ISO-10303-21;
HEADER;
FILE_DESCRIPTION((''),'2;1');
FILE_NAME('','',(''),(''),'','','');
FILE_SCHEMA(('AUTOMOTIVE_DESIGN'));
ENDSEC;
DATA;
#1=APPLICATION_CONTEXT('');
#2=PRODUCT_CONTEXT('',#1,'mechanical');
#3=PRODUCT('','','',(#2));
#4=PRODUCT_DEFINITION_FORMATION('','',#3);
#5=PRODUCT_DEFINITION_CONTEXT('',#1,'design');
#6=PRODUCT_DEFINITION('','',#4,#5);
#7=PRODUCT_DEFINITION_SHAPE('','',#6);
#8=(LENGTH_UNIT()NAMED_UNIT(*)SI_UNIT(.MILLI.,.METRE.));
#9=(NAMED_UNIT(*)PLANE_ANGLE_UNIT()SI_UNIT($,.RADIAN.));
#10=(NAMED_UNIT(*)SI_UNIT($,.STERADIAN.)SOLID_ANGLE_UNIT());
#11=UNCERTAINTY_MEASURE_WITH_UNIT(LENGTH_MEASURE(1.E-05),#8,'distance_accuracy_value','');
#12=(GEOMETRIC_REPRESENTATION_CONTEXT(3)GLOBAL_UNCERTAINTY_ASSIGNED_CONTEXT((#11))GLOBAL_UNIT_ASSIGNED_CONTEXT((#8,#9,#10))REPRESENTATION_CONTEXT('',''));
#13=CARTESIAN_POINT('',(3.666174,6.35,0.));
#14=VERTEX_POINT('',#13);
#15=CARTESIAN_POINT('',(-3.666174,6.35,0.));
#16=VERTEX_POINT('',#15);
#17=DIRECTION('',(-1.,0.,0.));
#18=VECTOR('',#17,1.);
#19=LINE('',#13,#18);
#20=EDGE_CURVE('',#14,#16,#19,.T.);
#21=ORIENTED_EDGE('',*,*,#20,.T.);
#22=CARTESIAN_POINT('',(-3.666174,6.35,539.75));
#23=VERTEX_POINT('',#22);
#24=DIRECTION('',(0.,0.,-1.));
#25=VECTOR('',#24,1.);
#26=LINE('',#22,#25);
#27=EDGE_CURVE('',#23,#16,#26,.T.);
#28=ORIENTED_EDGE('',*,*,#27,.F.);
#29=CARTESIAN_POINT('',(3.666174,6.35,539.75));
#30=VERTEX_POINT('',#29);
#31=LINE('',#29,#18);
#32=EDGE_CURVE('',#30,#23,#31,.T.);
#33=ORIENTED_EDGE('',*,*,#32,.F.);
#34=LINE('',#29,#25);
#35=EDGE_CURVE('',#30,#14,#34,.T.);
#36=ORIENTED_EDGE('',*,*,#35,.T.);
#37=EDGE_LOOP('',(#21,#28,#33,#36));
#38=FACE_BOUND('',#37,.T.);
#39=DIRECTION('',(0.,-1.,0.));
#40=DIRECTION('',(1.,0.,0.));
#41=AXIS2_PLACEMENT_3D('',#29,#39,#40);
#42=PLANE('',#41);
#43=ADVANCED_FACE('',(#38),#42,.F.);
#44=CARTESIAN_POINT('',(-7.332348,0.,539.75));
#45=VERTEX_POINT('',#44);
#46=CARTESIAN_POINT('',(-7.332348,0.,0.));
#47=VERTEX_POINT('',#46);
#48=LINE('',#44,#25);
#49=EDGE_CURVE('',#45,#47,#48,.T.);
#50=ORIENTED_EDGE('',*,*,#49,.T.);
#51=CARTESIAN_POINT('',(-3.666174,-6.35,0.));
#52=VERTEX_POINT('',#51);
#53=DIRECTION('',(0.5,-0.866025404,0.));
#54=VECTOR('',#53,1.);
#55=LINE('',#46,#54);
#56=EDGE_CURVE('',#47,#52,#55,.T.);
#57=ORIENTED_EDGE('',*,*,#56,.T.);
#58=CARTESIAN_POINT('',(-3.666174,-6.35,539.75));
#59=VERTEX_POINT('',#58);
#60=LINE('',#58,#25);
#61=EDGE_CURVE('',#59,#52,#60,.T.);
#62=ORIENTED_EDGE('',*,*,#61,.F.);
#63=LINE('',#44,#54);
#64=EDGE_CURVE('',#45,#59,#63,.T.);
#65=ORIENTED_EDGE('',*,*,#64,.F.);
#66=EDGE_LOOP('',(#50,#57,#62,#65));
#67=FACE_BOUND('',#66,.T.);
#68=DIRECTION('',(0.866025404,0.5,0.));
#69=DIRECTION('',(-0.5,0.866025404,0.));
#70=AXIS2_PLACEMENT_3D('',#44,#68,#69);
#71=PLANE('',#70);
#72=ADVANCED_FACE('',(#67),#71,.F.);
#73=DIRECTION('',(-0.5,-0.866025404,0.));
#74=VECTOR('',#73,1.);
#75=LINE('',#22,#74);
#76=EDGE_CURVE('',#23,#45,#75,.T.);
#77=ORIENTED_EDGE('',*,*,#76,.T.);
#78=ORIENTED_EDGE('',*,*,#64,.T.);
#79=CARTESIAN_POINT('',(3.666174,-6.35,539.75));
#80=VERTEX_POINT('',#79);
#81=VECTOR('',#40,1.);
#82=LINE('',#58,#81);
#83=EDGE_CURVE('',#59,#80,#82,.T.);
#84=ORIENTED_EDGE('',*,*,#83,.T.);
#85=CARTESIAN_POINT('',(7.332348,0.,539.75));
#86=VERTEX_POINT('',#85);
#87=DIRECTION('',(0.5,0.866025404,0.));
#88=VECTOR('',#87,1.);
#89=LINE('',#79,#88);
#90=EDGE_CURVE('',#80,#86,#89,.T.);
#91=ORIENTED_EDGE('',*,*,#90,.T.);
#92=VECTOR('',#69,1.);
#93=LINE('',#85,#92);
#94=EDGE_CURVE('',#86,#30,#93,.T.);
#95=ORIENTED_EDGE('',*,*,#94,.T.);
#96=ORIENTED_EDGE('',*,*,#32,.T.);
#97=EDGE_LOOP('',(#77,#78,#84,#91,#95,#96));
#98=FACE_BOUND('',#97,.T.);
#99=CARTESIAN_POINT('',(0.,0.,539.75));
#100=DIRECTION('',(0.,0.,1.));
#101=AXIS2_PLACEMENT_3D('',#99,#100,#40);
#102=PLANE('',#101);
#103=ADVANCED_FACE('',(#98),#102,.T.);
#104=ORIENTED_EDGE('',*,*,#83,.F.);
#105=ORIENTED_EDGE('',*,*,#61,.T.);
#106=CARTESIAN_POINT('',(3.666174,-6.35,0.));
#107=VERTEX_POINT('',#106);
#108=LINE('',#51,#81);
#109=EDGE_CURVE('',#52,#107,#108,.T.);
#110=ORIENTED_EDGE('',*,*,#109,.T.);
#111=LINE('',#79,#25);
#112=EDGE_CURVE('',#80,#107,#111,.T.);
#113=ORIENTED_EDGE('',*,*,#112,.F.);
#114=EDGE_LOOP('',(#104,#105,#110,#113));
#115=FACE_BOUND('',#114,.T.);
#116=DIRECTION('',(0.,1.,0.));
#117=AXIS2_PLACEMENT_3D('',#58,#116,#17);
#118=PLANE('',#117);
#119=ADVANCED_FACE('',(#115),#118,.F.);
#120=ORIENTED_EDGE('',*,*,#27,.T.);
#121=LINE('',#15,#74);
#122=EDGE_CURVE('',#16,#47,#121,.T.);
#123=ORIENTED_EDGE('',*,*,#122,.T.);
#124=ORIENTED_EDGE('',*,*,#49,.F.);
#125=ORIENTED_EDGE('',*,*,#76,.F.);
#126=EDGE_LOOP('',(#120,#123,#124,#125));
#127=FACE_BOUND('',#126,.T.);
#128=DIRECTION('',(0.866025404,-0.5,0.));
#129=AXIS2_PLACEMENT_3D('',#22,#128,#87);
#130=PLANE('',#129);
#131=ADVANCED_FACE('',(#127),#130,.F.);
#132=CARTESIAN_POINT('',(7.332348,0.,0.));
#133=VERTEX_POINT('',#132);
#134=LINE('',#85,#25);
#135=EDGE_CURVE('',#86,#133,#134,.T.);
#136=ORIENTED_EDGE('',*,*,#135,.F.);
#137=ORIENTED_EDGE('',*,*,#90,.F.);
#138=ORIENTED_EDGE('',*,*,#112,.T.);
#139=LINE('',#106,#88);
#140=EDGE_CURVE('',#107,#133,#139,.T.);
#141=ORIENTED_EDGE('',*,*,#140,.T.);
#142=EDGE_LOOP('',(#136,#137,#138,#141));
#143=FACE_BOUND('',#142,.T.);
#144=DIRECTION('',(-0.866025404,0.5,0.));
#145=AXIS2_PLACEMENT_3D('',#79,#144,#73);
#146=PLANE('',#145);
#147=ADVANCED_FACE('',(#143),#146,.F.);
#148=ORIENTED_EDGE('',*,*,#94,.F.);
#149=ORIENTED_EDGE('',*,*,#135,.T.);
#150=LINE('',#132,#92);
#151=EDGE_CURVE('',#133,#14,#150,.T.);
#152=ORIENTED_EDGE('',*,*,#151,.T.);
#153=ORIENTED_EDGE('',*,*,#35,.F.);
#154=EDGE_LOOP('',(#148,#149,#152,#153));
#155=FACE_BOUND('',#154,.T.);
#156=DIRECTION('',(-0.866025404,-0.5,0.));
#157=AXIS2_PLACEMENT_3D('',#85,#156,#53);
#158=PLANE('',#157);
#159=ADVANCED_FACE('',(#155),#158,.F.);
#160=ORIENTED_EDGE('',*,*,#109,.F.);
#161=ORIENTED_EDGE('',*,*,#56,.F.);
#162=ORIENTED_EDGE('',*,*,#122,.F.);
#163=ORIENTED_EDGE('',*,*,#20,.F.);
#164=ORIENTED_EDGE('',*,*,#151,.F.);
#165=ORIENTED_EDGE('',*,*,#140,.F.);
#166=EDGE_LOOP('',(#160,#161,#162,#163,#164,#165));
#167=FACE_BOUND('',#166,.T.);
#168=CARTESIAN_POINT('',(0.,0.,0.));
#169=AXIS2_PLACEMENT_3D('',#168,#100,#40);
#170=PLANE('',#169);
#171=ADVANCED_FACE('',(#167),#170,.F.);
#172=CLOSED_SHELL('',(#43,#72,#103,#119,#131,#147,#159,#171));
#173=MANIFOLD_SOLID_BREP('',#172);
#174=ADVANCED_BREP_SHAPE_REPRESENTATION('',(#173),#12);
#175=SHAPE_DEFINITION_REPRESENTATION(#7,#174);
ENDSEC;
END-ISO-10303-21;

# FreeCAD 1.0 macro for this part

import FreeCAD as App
import Part
import Sketcher

V = App.Vector
Q = App.Units.Quantity


def add_polygon(sketch, points):
    """Adds a closed chain of lines whose ends are joined by coincident constraints."""
    first, n = sketch.GeometryCount, len(points)
    for a, b in zip(points, points[1:] + points[:1]):
        sketch.addGeometry(Part.LineSegment(App.Vector(*a, 0), App.Vector(*b, 0)), False)
    for i in range(n):
        sketch.addConstraint(Sketcher.Constraint("Coincident", first + i, 2, first + (i + 1) % n, 1))

doc = App.newDocument("Part")
params = doc.addObject("Spreadsheet::Sheet", "Params")
for row, (alias, value) in enumerate([
    ("pad1_length", "21.25 in"),
], start=1):
    params.set(f"A{row}", alias)
    params.set(f"B{row}", "=" + value)
    params.setAlias(f"B{row}", alias)

body = doc.addObject("PartDesign::Body", "Body")

# Sketch on XY plane
sketch1 = body.newObject("Sketcher::SketchObject", "Sketch")
sketch1.AttachmentSupport = (doc.getObject("XY_Plane"), [""])
sketch1.MapMode = "FlatFace"
add_polygon(sketch1, [(7.332348, 0), (3.666174, 6.35), (-3.666174, 6.35), (-7.332348, 0), (-3.666174, -6.35), (3.666174, -6.35)])  # lines 0-5
sketch1.addConstraint(Sketcher.Constraint("Horizontal", 1))
sketch1.addConstraint(Sketcher.Constraint("Horizontal", 4))
sketch1.addConstraint(Sketcher.Constraint("Symmetric", 0, 2, 3, 2, -1, 1))
sketch1.addConstraint(Sketcher.Constraint("Symmetric", 2, 2, 5, 2, -1, 1))
sketch1.addConstraint(Sketcher.Constraint("PointOnObject", 2, 2, -1))
sketch1.addConstraint(Sketcher.Constraint("Parallel", 2, 5))
sketch1.addConstraint(Sketcher.Constraint("Vertical", 1, 2, 3, 2))
sketch1.addConstraint(Sketcher.Constraint("Angle", 0, Q("120 deg")))
sketch1.addConstraint(Sketcher.Constraint("DistanceY", 3, 2, 1, 2, Q("0.5 in")))
sketch1.addConstraint(Sketcher.Constraint("DistanceX", 1, 2, 1, 1, Q("7.332348 mm")))
pad1 = body.newObject("PartDesign::Pad", "Pad")
pad1.Profile = sketch1
pad1.setExpression("Length", "Params.pad1_length")

doc.recompute()
